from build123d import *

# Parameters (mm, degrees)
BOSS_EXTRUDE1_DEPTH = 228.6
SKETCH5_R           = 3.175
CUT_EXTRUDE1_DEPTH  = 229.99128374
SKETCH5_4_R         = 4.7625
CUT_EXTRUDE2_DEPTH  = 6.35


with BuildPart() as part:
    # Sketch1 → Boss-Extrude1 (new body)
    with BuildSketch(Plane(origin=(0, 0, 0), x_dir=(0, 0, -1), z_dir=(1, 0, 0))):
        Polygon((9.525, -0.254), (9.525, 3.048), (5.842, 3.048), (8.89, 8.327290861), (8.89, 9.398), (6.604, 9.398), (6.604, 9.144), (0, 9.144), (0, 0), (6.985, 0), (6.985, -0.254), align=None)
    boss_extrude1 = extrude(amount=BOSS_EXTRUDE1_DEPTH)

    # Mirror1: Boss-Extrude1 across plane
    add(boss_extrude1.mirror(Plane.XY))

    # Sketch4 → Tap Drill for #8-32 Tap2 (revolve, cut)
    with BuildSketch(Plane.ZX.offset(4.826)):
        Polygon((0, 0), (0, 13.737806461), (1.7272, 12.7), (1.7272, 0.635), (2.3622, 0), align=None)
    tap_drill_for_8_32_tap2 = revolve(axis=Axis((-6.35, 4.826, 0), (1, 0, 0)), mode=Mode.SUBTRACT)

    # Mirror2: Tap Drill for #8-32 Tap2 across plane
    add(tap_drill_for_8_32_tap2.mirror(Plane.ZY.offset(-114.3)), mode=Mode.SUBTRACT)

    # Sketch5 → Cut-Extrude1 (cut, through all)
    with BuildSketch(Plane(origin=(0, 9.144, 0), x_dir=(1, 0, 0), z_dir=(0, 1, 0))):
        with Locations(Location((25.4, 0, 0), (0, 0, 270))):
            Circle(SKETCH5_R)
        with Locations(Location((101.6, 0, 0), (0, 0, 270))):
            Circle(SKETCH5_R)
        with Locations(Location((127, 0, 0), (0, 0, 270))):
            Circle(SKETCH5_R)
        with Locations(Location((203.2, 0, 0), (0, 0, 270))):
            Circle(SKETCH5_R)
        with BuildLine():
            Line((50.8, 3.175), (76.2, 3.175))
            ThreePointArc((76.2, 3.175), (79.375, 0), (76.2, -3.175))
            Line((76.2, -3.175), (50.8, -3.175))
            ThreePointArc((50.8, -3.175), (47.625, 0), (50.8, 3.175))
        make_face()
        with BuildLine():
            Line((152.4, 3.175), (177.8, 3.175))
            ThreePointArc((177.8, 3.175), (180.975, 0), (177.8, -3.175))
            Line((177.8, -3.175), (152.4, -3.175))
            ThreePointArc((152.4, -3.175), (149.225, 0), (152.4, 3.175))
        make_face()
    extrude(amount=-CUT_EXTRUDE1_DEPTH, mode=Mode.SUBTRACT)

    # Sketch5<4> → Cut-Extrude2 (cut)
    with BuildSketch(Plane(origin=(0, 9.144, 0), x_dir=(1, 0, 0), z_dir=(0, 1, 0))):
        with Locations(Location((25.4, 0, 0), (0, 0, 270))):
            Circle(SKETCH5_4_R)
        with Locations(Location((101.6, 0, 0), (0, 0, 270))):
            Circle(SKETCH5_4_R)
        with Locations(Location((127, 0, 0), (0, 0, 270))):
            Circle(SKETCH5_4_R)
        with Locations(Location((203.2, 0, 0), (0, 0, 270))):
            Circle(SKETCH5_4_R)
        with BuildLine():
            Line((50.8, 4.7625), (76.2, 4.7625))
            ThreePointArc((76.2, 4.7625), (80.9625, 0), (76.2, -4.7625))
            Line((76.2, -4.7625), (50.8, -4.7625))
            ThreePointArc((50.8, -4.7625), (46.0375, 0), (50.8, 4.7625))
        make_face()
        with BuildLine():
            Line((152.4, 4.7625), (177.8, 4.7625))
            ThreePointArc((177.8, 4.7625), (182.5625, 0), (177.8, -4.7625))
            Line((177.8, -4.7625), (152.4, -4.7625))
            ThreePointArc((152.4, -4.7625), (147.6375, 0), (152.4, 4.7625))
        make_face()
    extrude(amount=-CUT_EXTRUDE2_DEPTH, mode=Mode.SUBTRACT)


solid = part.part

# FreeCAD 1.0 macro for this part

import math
import FreeCAD as App
import Part
import Sketcher
Q = App.Units.Quantity

doc = App.newDocument("Part")
body = doc.addObject("PartDesign::Body", "Body")

# Sketch on YZ plane
sketch1 = body.newObject("Sketcher::SketchObject", "Sketch")
sketch1.AttachmentSupport = (doc.getObject("YZ_Plane"), [""])
sketch1.MapMode = "FlatFace"
sketch1.addGeometry([
    Part.LineSegment(App.Vector(-0.254, -9.525, 0), App.Vector(3.048, -9.525, 0)),  # 0
    Part.LineSegment(App.Vector(3.048, -9.525, 0), App.Vector(3.048, -5.842, 0)),  # 1
    Part.LineSegment(App.Vector(3.048, -5.842, 0), App.Vector(8.327291, -8.89, 0)),  # 2
    Part.LineSegment(App.Vector(8.327291, -8.89, 0), App.Vector(9.398, -8.89, 0)),  # 3
    Part.LineSegment(App.Vector(9.398, -8.89, 0), App.Vector(9.398, -6.604, 0)),  # 4
    Part.LineSegment(App.Vector(9.398, -6.604, 0), App.Vector(9.144, -6.604, 0)),  # 5
    Part.LineSegment(App.Vector(9.144, -6.604, 0), App.Vector(9.144, 0, 0)),  # 6
    Part.LineSegment(App.Vector(9.144, 0, 0), App.Vector(0, 0, 0)),  # 7
    Part.LineSegment(App.Vector(0, 0, 0), App.Vector(0, -6.985, 0)),  # 8
    Part.LineSegment(App.Vector(0, -6.985, 0), App.Vector(-0.254, -6.985, 0)),  # 9
    Part.LineSegment(App.Vector(-0.254, -6.985, 0), App.Vector(-0.254, -9.525, 0)),  # 10
], False)
sketch1.addConstraint([
    Sketcher.Constraint("Coincident", 0, 2, 1, 1),
    Sketcher.Constraint("Coincident", 1, 2, 2, 1),
    Sketcher.Constraint("Coincident", 2, 2, 3, 1),
    Sketcher.Constraint("Coincident", 3, 2, 4, 1),
    Sketcher.Constraint("Coincident", 4, 2, 5, 1),
    Sketcher.Constraint("Coincident", 5, 2, 6, 1),
    Sketcher.Constraint("Coincident", 6, 2, 7, 1),
    Sketcher.Constraint("Coincident", 7, 2, 8, 1),
    Sketcher.Constraint("Coincident", 8, 2, 9, 1),
    Sketcher.Constraint("Coincident", 9, 2, 10, 1),
    Sketcher.Constraint("Coincident", 10, 2, 0, 1),
    Sketcher.Constraint("Horizontal", 0),
    Sketcher.Constraint("Vertical", 1),
    Sketcher.Constraint("Horizontal", 3),
    Sketcher.Constraint("Vertical", 4),
    Sketcher.Constraint("Horizontal", 5),
    Sketcher.Constraint("Vertical", 6),
    Sketcher.Constraint("Horizontal", 7),
    Sketcher.Constraint("Vertical", 8),
    Sketcher.Constraint("Horizontal", 9),
    Sketcher.Constraint("Vertical", 10),
    Sketcher.Constraint("Coincident", 7, 2, -1, 1),
    Sketcher.Constraint("Equal", 5, 9),
    Sketcher.Constraint("DistanceY", 10, 2, 10, 1, Q("0.1 in")),
    Sketcher.Constraint("Angle", 2, Q("-30 deg")),
    Sketcher.Constraint("DistanceX", 0, 1, 0, 2, Q("0.13 in")),
    Sketcher.Constraint("DistanceX", 5, 2, 5, 1, Q("0.01 in")),
    Sketcher.Constraint("DistanceX", 7, 2, 7, 1, Q("0.36 in")),
    Sketcher.Constraint("DistanceY", 4, 1, 4, 2, Q("0.09 in")),
    Sketcher.Constraint("DistanceY", 6, 1, 6, 2, Q("0.26 in")),
    Sketcher.Constraint("Distance", 2, Q("0.24 in")),
    Sketcher.Constraint("DistanceY", 1, 1, 1, 2, Q("0.145 in")),
])
pad1 = body.newObject("PartDesign::Pad", "Pad")
pad1.Profile = sketch1
pad1.Length = Q("9 in")
doc.recompute()

mirrored = body.newObject("PartDesign::Mirrored", "Mirrored")
mirrored.Originals = [pad1]
mirrored.MirrorPlane = (doc.getObject("XY_Plane"), [""])
body.Tip = mirrored

# Sketch on XZ plane
sketch2 = body.newObject("Sketcher::SketchObject", "Sketch001")
sketch2.AttachmentSupport = (doc.getObject("XZ_Plane"), [""])
sketch2.MapMode = "FlatFace"
sketch2.AttachmentOffset = App.Placement(App.Vector(0, 0, -0.19 * 25.4), App.Rotation())
sketch2.addGeometry([
    Part.LineSegment(App.Vector(13.737806, 0, 0), App.Vector(0, 0, 0)),  # 0
    Part.LineSegment(App.Vector(0, 0, 0), App.Vector(0, 2.3622, 0)),  # 1
    Part.LineSegment(App.Vector(0, 2.3622, 0), App.Vector(0.635, 1.7272, 0)),  # 2
    Part.LineSegment(App.Vector(0.635, 1.7272, 0), App.Vector(12.7, 1.7272, 0)),  # 3
    Part.LineSegment(App.Vector(12.7, 1.7272, 0), App.Vector(13.737806, 0, 0)),  # 4
], False)
sketch2.addConstraint([
    Sketcher.Constraint("Coincident", 0, 2, 1, 1),
    Sketcher.Constraint("Coincident", 1, 2, 2, 1),
    Sketcher.Constraint("Coincident", 2, 2, 3, 1),
    Sketcher.Constraint("Coincident", 3, 2, 4, 1),
    Sketcher.Constraint("Coincident", 4, 2, 0, 1),
    Sketcher.Constraint("Horizontal", 0),
    Sketcher.Constraint("Vertical", 1),
    Sketcher.Constraint("Horizontal", 3),
    Sketcher.Constraint("Coincident", 0, 2, -1, 1),
    Sketcher.Constraint("Angle", 2, Q("-45 deg")),
    Sketcher.Constraint("Angle", 4, Q("-59 deg")),
    Sketcher.Constraint("DistanceX", -1, 1, 3, 2, Q("0.5 in")),
    Sketcher.Constraint("DistanceX", 3, 1, 3, 2, Q("0.475 in")),
    Sketcher.Constraint("DistanceY", 1, 1, 1, 2, Q("0.093 in")),
])
groove = body.newObject("PartDesign::Groove", "Groove")
groove.Profile = sketch2
groove.ReferenceAxis = (sketch2, ["H_Axis"])
groove.Angle = 360
doc.recompute()

datumplane = body.newObject("PartDesign::Plane", "DatumPlane")
datumplane.AttachmentSupport = (doc.getObject("YZ_Plane"), [""])
datumplane.MapMode = "FlatFace"
datumplane.AttachmentOffset = App.Placement(App.Vector(0, 0, 4.5 * 25.4), App.Rotation())
mirrored2 = body.newObject("PartDesign::Mirrored", "Mirrored001")
mirrored2.Originals = [groove]
mirrored2.MirrorPlane = (datumplane, [""])
body.Tip = mirrored2

# Sketch on XZ plane
sketch3 = body.newObject("Sketcher::SketchObject", "Sketch002")
sketch3.AttachmentSupport = (doc.getObject("XZ_Plane"), [""])
sketch3.MapMode = "FlatFace"
sketch3.AttachmentOffset = App.Placement(App.Vector(0, 0, -0.36 * 25.4), App.Rotation())
sketch3.addGeometry([
    Part.Circle(App.Vector(25.4, 0, 0), App.Vector(0, 0, 1), 3.175),  # 0
    Part.Circle(App.Vector(101.6, 0, 0), App.Vector(0, 0, 1), 3.175),  # 1
    Part.Circle(App.Vector(127, 0, 0), App.Vector(0, 0, 1), 3.175),  # 2
    Part.Circle(App.Vector(203.2, 0, 0), App.Vector(0, 0, 1), 3.175),  # 3
    Part.LineSegment(App.Vector(76.2, -3.175, 0), App.Vector(50.8, -3.175, 0)),  # 4
    Part.ArcOfCircle(Part.Circle(App.Vector(50.8, 0, 0), App.Vector(0, 0, 1), 3.175), math.radians(90), math.radians(270)),  # 5
    Part.LineSegment(App.Vector(50.8, 3.175, 0), App.Vector(76.2, 3.175, 0)),  # 6
    Part.ArcOfCircle(Part.Circle(App.Vector(76.2, 0, 0), App.Vector(0, 0, 1), 3.175), math.radians(-90), math.radians(90)),  # 7
    Part.LineSegment(App.Vector(177.8, -3.175, 0), App.Vector(152.4, -3.175, 0)),  # 8
    Part.ArcOfCircle(Part.Circle(App.Vector(152.4, 0, 0), App.Vector(0, 0, 1), 3.175), math.radians(90), math.radians(270)),  # 9
    Part.LineSegment(App.Vector(152.4, 3.175, 0), App.Vector(177.8, 3.175, 0)),  # 10
    Part.ArcOfCircle(Part.Circle(App.Vector(177.8, 0, 0), App.Vector(0, 0, 1), 3.175), math.radians(-90), math.radians(90)),  # 11
], False)
sketch3.addConstraint([
    Sketcher.Constraint("Tangent", 4, 2, 5, 2),
    Sketcher.Constraint("Tangent", 5, 1, 6, 1),
    Sketcher.Constraint("Tangent", 6, 2, 7, 2),
    Sketcher.Constraint("Tangent", 7, 1, 4, 1),
    Sketcher.Constraint("Tangent", 8, 2, 9, 2),
    Sketcher.Constraint("Tangent", 9, 1, 10, 1),
    Sketcher.Constraint("Tangent", 10, 2, 11, 2),
    Sketcher.Constraint("Tangent", 11, 1, 8, 1),
    Sketcher.Constraint("Horizontal", 4),
    Sketcher.Constraint("Horizontal", 6),
    Sketcher.Constraint("Horizontal", 8),
    Sketcher.Constraint("Horizontal", 10),
    Sketcher.Constraint("Equal", 0, 1),
    Sketcher.Constraint("Equal", 1, 2),
    Sketcher.Constraint("Equal", 2, 3),
    Sketcher.Constraint("Equal", 3, 5),
    Sketcher.Constraint("Equal", 7, 9),
    Sketcher.Constraint("PointOnObject", 0, 3, -1),
    Sketcher.Constraint("PointOnObject", 1, 3, -1),
    Sketcher.Constraint("PointOnObject", 2, 3, -1),
    Sketcher.Constraint("PointOnObject", 3, 3, -1),
    Sketcher.Constraint("PointOnObject", 5, 3, -1),
    Sketcher.Constraint("PointOnObject", 9, 3, -1),
    Sketcher.Constraint("Equal", 6, 8),
    Sketcher.Constraint("Diameter", 0, Q("0.25 in")),
    Sketcher.Constraint("DistanceX", 4, 2, 4, 1, Q("1 in")),
    Sketcher.Constraint("DistanceX", -1, 1, 0, 3, Q("1 in")),
    Sketcher.Constraint("DistanceX", -1, 1, 1, 3, Q("4 in")),
    Sketcher.Constraint("DistanceX", -1, 1, 2, 3, Q("5 in")),
    Sketcher.Constraint("DistanceX", -1, 1, 3, 3, Q("8 in")),
    Sketcher.Constraint("DistanceX", -1, 1, 5, 3, Q("2 in")),
    Sketcher.Constraint("DistanceX", -1, 1, 9, 3, Q("6 in")),
])
pocket1 = body.newObject("PartDesign::Pocket", "Pocket")
pocket1.Profile = sketch3
pocket1.Type = "ThroughAll"
pocket1.Reversed = True

# Sketch on XZ plane
sketch4 = body.newObject("Sketcher::SketchObject", "Sketch003")
sketch4.AttachmentSupport = (doc.getObject("XZ_Plane"), [""])
sketch4.MapMode = "FlatFace"
sketch4.AttachmentOffset = App.Placement(App.Vector(0, 0, -0.36 * 25.4), App.Rotation())
sketch4.addGeometry([
    Part.Circle(App.Vector(25.4, 0, 0), App.Vector(0, 0, 1), 4.7625),  # 0
    Part.Circle(App.Vector(101.6, 0, 0), App.Vector(0, 0, 1), 4.7625),  # 1
    Part.Circle(App.Vector(127, 0, 0), App.Vector(0, 0, 1), 4.7625),  # 2
    Part.Circle(App.Vector(203.2, 0, 0), App.Vector(0, 0, 1), 4.7625),  # 3
    Part.LineSegment(App.Vector(76.2, -4.7625, 0), App.Vector(50.8, -4.7625, 0)),  # 4
    Part.ArcOfCircle(Part.Circle(App.Vector(50.8, 0, 0), App.Vector(0, 0, 1), 4.7625), math.radians(90), math.radians(270)),  # 5
    Part.LineSegment(App.Vector(50.8, 4.7625, 0), App.Vector(76.2, 4.7625, 0)),  # 6
    Part.ArcOfCircle(Part.Circle(App.Vector(76.2, 0, 0), App.Vector(0, 0, 1), 4.7625), math.radians(-90), math.radians(90)),  # 7
    Part.LineSegment(App.Vector(177.8, -4.7625, 0), App.Vector(152.4, -4.7625, 0)),  # 8
    Part.ArcOfCircle(Part.Circle(App.Vector(152.4, 0, 0), App.Vector(0, 0, 1), 4.7625), math.radians(90), math.radians(270)),  # 9
    Part.LineSegment(App.Vector(152.4, 4.7625, 0), App.Vector(177.8, 4.7625, 0)),  # 10
    Part.ArcOfCircle(Part.Circle(App.Vector(177.8, 0, 0), App.Vector(0, 0, 1), 4.7625), math.radians(-90), math.radians(90)),  # 11
], False)
sketch4.addConstraint([
    Sketcher.Constraint("Tangent", 4, 2, 5, 2),
    Sketcher.Constraint("Tangent", 5, 1, 6, 1),
    Sketcher.Constraint("Tangent", 6, 2, 7, 2),
    Sketcher.Constraint("Tangent", 7, 1, 4, 1),
    Sketcher.Constraint("Tangent", 8, 2, 9, 2),
    Sketcher.Constraint("Tangent", 9, 1, 10, 1),
    Sketcher.Constraint("Tangent", 10, 2, 11, 2),
    Sketcher.Constraint("Tangent", 11, 1, 8, 1),
    Sketcher.Constraint("Horizontal", 4),
    Sketcher.Constraint("Horizontal", 6),
    Sketcher.Constraint("Horizontal", 8),
    Sketcher.Constraint("Horizontal", 10),
    Sketcher.Constraint("Equal", 0, 1),
    Sketcher.Constraint("Equal", 1, 2),
    Sketcher.Constraint("Equal", 2, 3),
    Sketcher.Constraint("Equal", 3, 5),
    Sketcher.Constraint("Equal", 7, 9),
    Sketcher.Constraint("PointOnObject", 0, 3, -1),
    Sketcher.Constraint("PointOnObject", 1, 3, -1),
    Sketcher.Constraint("PointOnObject", 2, 3, -1),
    Sketcher.Constraint("PointOnObject", 3, 3, -1),
    Sketcher.Constraint("PointOnObject", 5, 3, -1),
    Sketcher.Constraint("PointOnObject", 9, 3, -1),
    Sketcher.Constraint("Equal", 6, 8),
    Sketcher.Constraint("DistanceX", 4, 2, 4, 1, Q("1 in")),
    Sketcher.Constraint("Diameter", 0, Q("0.375 in")),
    Sketcher.Constraint("DistanceX", -1, 1, 0, 3, Q("1 in")),
    Sketcher.Constraint("DistanceX", -1, 1, 1, 3, Q("4 in")),
    Sketcher.Constraint("DistanceX", -1, 1, 2, 3, Q("5 in")),
    Sketcher.Constraint("DistanceX", -1, 1, 3, 3, Q("8 in")),
    Sketcher.Constraint("DistanceX", -1, 1, 5, 3, Q("2 in")),
    Sketcher.Constraint("DistanceX", -1, 1, 9, 3, Q("6 in")),
])
pocket2 = body.newObject("PartDesign::Pocket", "Pocket001")
pocket2.Profile = sketch4
pocket2.Length = Q("0.25 in")
pocket2.Reversed = True

doc.recompute()
